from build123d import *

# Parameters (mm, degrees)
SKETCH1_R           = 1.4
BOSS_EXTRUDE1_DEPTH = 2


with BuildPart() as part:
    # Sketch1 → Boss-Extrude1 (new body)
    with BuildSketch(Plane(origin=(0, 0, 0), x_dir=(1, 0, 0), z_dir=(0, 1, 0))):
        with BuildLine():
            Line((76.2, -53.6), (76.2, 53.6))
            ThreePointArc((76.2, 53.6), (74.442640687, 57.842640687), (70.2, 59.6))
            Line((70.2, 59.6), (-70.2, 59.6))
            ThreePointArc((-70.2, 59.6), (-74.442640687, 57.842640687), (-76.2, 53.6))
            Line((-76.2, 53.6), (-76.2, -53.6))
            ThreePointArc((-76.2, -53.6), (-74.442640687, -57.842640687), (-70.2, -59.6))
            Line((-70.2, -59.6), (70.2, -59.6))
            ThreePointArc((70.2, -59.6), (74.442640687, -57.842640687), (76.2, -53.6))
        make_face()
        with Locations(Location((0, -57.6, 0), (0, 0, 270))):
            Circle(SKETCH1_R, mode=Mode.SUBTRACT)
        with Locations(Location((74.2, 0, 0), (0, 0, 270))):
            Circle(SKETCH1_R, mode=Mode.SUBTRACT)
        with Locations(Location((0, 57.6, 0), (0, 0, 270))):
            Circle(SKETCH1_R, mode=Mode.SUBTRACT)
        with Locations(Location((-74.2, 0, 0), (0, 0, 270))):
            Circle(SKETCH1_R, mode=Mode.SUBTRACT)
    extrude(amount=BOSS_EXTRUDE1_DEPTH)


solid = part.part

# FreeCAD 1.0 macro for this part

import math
import FreeCAD as App
import Part
import Sketcher
from FreeCAD import Vector
Q = App.Units.Quantity

doc = App.newDocument("Part")
body = doc.addObject("PartDesign::Body", "Body")

sketch1 = body.newObject("Sketcher::SketchObject", "Sketch")
sketch1.AttachmentSupport = (doc.getObject("XZ_Plane"), [""])
sketch1.MapMode = "FlatFace"
sketch1.addGeometry(Part.LineSegment(Vector(76.2, 53.6, 0), Vector(76.2, -53.6, 0)), False)
sketch1.addGeometry(Part.ArcOfCircle(Part.Circle(Vector(70.2, -53.6, 0), Vector(0, 0, 1), 6), math.radians(-90), math.radians(0)), False)
sketch1.addGeometry(Part.LineSegment(Vector(70.2, -59.6, 0), Vector(-70.2, -59.6, 0)), False)
sketch1.addGeometry(Part.ArcOfCircle(Part.Circle(Vector(-70.2, -53.6, 0), Vector(0, 0, 1), 6), math.radians(180), math.radians(270)), False)
sketch1.addGeometry(Part.LineSegment(Vector(-76.2, -53.6, 0), Vector(-76.2, 53.6, 0)), False)
sketch1.addGeometry(Part.ArcOfCircle(Part.Circle(Vector(-70.2, 53.6, 0), Vector(0, 0, 1), 6), math.radians(90), math.radians(180)), False)
sketch1.addGeometry(Part.LineSegment(Vector(-70.2, 59.6, 0), Vector(70.2, 59.6, 0)), False)
sketch1.addGeometry(Part.ArcOfCircle(Part.Circle(Vector(70.2, 53.6, 0), Vector(0, 0, 1), 6), math.radians(0), math.radians(90)), False)
sketch1.addGeometry(Part.Circle(Vector(0, 57.6, 0), Vector(0, 0, 1), 1.4), False)
sketch1.addGeometry(Part.Circle(Vector(-74.2, 0, 0), Vector(0, 0, 1), 1.4), False)
sketch1.addGeometry(Part.Circle(Vector(74.2, 0, 0), Vector(0, 0, 1), 1.4), False)
sketch1.addGeometry(Part.Circle(Vector(0, -57.6, 0), Vector(0, 0, 1), 1.4), False)
sketch1.addConstraint(Sketcher.Constraint("Tangent", 0, 2, 1, 2))
sketch1.addConstraint(Sketcher.Constraint("Tangent", 1, 1, 2, 1))
sketch1.addConstraint(Sketcher.Constraint("Tangent", 2, 2, 3, 2))
sketch1.addConstraint(Sketcher.Constraint("Tangent", 3, 1, 4, 1))
sketch1.addConstraint(Sketcher.Constraint("Tangent", 4, 2, 5, 2))
sketch1.addConstraint(Sketcher.Constraint("Tangent", 5, 1, 6, 1))
sketch1.addConstraint(Sketcher.Constraint("Tangent", 6, 2, 7, 2))
sketch1.addConstraint(Sketcher.Constraint("Tangent", 7, 1, 0, 1))
sketch1.addConstraint(Sketcher.Constraint("Vertical", 0))
sketch1.addConstraint(Sketcher.Constraint("Horizontal", 2))
sketch1.addConstraint(Sketcher.Constraint("Vertical", 4))
sketch1.addConstraint(Sketcher.Constraint("Horizontal", 6))
sketch1.addConstraint(Sketcher.Constraint("Equal", 1, 3))
sketch1.addConstraint(Sketcher.Constraint("Equal", 3, 5))
sketch1.addConstraint(Sketcher.Constraint("Equal", 5, 7))
sketch1.addConstraint(Sketcher.Constraint("Equal", 8, 9))
sketch1.addConstraint(Sketcher.Constraint("Equal", 9, 10))
sketch1.addConstraint(Sketcher.Constraint("Equal", 10, 11))
sketch1.addConstraint(Sketcher.Constraint("Symmetric", 1, 3, 5, 3, -1, 1))
sketch1.addConstraint(Sketcher.Constraint("Symmetric", 9, 3, 10, 3, -1, 1))
sketch1.addConstraint(Sketcher.Constraint("Symmetric", 8, 3, 11, 3, -1, 1))
sketch1.addConstraint(Sketcher.Constraint("PointOnObject", 8, 3, -2))
sketch1.addConstraint(Sketcher.Constraint("PointOnObject", 9, 3, -1))
sketch1.addConstraint(Sketcher.Constraint("Radius", 1, Q("6 mm")))
sketch1.addConstraint(Sketcher.Constraint("Diameter", 8, Q("2.8 mm")))
sketch1.addConstraint(Sketcher.Constraint("DistanceX", 2, 2, 2, 1, Q("140.4 mm")))
sketch1.addConstraint(Sketcher.Constraint("DistanceY", 0, 2, 0, 1, Q("107.2 mm")))
sketch1.addConstraint(Sketcher.Constraint("DistanceY", 5, 3, 8, 3, Q("4 mm")))
sketch1.addConstraint(Sketcher.Constraint("DistanceX", 9, 3, 3, 3, Q("4 mm")))
pad1 = body.newObject("PartDesign::Pad", "Pad")
pad1.Profile = sketch1
pad1.Length = 2
pad1.Reversed = True

doc.recompute()
